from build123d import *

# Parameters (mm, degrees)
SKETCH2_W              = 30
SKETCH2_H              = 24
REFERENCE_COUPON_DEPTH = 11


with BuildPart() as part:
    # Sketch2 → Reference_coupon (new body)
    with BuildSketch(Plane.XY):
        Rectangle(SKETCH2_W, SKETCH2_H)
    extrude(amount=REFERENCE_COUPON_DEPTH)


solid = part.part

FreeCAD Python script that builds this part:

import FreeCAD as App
import Part
import Sketcher
from FreeCAD import Vector
Q = App.Units.Quantity

doc = App.newDocument("Part")
body = doc.addObject("PartDesign::Body", "Body")

sketch1 = body.newObject("Sketcher::SketchObject", "Sketch")
sketch1.AttachmentSupport = (doc.getObject("XY_Plane"), [""])
sketch1.MapMode = "FlatFace"
sketch1.addGeometry([
    Part.LineSegment(Vector(-15, 12, 0), Vector(-15, -12, 0)),
    Part.LineSegment(Vector(-15, -12, 0), Vector(15, -12, 0)),
    Part.LineSegment(Vector(15, -12, 0), Vector(15, 12, 0)),
    Part.LineSegment(Vector(15, 12, 0), Vector(-15, 12, 0)),
], False)
sketch1.addConstraint([
    Sketcher.Constraint("Coincident", 0, 2, 1, 1),
    Sketcher.Constraint("Coincident", 1, 2, 2, 1),
    Sketcher.Constraint("Coincident", 2, 2, 3, 1),
    Sketcher.Constraint("Coincident", 3, 2, 0, 1),
    Sketcher.Constraint("Vertical", 0),
    Sketcher.Constraint("Horizontal", 1),
    Sketcher.Constraint("Vertical", 2),
    Sketcher.Constraint("Horizontal", 3),
    Sketcher.Constraint("Symmetric", 0, 2, 2, 2, -1, 1),
    Sketcher.Constraint("DistanceX", 1, 1, 1, 2, Q("30 mm")),
    Sketcher.Constraint("DistanceY", 0, 2, 0, 1, Q("24 mm")),
])
pad1 = body.newObject("PartDesign::Pad", "Pad")
pad1.Profile = sketch1
pad1.Length = 11

doc.recompute()
